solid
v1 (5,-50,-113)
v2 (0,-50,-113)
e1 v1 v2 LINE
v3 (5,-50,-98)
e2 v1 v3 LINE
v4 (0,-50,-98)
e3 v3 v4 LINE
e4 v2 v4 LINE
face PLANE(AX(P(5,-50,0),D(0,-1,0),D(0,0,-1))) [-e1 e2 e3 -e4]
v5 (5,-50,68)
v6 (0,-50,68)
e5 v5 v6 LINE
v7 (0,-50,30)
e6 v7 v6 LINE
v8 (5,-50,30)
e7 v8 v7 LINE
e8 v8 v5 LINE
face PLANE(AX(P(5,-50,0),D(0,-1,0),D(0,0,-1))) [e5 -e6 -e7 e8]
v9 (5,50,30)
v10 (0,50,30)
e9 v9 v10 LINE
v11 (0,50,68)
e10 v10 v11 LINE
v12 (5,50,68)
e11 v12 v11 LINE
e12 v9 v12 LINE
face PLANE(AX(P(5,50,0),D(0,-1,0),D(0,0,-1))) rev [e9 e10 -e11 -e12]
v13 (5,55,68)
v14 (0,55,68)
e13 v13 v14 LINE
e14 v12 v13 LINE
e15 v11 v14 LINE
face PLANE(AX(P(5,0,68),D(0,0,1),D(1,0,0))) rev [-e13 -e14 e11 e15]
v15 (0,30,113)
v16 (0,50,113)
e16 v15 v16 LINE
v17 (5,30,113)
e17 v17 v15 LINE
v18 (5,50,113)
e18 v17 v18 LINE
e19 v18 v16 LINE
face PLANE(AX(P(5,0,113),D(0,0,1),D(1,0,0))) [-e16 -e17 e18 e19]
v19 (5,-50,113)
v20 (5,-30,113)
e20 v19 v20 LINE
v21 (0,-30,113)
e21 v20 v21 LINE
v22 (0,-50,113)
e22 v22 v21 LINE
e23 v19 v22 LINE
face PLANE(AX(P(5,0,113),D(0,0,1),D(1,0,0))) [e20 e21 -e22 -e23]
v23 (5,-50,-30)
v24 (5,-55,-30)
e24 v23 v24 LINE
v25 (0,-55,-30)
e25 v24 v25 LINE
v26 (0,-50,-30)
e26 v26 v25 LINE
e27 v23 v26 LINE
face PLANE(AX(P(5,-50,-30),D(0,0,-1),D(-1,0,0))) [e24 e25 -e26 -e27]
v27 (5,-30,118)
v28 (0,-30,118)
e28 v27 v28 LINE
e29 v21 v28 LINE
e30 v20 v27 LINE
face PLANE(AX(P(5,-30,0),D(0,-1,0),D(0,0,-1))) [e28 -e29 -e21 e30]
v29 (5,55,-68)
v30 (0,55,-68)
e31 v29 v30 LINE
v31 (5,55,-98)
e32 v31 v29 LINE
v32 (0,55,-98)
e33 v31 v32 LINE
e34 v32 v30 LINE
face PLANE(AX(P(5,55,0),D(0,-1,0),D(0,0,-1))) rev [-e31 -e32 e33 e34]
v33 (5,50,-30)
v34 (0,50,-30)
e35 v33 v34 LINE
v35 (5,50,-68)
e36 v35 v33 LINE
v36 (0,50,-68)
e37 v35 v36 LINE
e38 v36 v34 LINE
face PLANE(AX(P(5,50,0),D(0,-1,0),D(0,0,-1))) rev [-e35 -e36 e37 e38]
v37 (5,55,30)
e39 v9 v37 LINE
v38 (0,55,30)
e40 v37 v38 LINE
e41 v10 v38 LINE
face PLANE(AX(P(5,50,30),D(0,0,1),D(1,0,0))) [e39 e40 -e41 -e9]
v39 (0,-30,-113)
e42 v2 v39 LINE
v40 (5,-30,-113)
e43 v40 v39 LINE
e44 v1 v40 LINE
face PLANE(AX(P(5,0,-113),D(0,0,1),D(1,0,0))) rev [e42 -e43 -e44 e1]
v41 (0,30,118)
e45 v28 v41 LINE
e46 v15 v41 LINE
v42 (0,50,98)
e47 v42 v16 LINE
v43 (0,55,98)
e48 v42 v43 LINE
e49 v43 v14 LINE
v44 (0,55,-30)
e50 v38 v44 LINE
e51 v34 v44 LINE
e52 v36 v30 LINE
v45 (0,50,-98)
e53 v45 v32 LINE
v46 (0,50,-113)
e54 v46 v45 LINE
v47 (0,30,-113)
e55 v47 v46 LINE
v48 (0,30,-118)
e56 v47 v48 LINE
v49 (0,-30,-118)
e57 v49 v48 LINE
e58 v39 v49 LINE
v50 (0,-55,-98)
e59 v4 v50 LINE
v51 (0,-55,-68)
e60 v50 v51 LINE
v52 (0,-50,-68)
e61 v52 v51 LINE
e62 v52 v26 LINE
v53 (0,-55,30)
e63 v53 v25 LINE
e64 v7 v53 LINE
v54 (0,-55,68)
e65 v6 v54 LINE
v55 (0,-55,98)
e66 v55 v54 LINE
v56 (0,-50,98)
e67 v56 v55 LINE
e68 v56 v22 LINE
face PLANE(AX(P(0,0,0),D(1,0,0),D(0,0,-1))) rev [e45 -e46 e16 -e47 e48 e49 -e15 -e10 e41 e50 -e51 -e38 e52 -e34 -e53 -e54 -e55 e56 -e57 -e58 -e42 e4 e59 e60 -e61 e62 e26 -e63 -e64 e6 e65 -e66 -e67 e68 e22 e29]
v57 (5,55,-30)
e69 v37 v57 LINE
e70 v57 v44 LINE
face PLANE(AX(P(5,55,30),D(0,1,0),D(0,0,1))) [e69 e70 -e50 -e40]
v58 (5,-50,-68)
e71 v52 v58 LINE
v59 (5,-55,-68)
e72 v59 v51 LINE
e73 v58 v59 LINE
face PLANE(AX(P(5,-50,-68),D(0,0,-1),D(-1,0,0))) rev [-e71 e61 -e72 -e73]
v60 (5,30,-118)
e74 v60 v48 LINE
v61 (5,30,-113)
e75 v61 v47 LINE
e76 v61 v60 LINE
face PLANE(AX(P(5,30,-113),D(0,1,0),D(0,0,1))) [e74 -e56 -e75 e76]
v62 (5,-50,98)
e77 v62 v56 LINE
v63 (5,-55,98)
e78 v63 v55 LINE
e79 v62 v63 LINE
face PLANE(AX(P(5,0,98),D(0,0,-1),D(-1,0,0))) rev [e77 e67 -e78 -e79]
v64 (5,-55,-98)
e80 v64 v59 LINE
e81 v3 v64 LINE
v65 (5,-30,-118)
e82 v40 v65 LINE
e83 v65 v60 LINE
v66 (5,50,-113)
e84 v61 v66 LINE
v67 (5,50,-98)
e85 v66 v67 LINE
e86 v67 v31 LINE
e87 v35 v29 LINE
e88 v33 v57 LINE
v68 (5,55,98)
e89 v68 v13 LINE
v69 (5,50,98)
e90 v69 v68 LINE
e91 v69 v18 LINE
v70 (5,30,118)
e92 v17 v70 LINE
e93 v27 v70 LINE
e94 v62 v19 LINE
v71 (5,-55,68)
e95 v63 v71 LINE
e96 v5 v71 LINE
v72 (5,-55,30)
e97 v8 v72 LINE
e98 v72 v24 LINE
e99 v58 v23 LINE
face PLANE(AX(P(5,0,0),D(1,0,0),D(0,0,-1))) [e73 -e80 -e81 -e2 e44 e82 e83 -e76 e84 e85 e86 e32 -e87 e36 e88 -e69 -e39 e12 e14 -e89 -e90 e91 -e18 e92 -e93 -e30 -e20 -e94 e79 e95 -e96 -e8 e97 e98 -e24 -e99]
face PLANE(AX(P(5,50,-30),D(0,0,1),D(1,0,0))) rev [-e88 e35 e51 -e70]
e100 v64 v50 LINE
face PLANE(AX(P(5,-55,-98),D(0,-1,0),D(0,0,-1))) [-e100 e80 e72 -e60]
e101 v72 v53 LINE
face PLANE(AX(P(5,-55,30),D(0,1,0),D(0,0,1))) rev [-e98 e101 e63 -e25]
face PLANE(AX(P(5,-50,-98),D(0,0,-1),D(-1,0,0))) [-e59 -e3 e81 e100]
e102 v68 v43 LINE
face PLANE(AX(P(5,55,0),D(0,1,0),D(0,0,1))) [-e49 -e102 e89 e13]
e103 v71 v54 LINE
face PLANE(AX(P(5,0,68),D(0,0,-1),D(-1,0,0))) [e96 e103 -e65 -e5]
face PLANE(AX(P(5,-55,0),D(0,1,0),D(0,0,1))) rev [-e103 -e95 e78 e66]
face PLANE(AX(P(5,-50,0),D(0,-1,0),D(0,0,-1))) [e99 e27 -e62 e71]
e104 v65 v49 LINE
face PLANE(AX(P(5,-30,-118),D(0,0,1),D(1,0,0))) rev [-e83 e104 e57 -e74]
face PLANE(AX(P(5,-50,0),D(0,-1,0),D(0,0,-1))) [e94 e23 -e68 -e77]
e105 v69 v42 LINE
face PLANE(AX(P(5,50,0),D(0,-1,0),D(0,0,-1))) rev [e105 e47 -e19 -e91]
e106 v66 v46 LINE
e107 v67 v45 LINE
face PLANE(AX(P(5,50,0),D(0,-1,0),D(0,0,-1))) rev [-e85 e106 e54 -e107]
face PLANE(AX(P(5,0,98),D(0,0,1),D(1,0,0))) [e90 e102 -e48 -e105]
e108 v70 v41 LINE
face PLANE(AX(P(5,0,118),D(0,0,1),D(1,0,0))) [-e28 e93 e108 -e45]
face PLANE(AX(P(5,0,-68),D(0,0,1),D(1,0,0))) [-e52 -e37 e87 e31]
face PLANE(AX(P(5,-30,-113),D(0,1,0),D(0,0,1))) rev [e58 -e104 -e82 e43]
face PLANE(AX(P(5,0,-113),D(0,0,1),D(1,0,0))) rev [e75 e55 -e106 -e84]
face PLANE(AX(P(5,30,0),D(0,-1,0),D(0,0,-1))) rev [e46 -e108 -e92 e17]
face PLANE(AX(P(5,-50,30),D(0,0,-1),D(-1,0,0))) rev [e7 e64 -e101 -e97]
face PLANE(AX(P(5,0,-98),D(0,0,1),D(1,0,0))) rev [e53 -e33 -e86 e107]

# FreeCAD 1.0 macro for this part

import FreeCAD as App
import Part
import Sketcher
Q = App.Units.Quantity


def add_polygon(sketch, points):
    """Adds a closed chain of lines whose ends are joined by coincident constraints."""
    first, n = sketch.GeometryCount, len(points)
    for a, b in zip(points, points[1:] + points[:1]):
        sketch.addGeometry(Part.LineSegment(App.Vector(*a, 0), App.Vector(*b, 0)), False)
    for i in range(n):
        sketch.addConstraint(Sketcher.Constraint("Coincident", first + i, 2, first + (i + 1) % n, 1))

doc = App.newDocument("Part")
body = doc.addObject("PartDesign::Body", "Body")

sketch1 = body.newObject("Sketcher::SketchObject", "Sketch")
sketch1.AttachmentSupport = (doc.getObject("YZ_Plane"), [""])
sketch1.MapMode = "FlatFace"
add_polygon(sketch1, [(-30, 113), (-50, 113), (-50, 98), (-55, 98), (-55, 68), (-50, 68), (-50, 30), (-55, 30), (-55, -30), (-50, -30), (-50, -68), (-55, -68), (-55, -98), (-50, -98), (-50, -113), (-30, -113), (-30, -118), (30, -118), (30, -113), (50, -113), (50, -98), (55, -98), (55, -68), (50, -68), (50, -30), (55, -30), (55, 30), (50, 30), (50, 68), (55, 68), (55, 98), (50, 98), (50, 113), (30, 113), (30, 118), (-30, 118)])
sketch1.addConstraint(Sketcher.Constraint("Horizontal", 0))
sketch1.addConstraint(Sketcher.Constraint("Vertical", 1))
sketch1.addConstraint(Sketcher.Constraint("Horizontal", 2))
sketch1.addConstraint(Sketcher.Constraint("Vertical", 3))
sketch1.addConstraint(Sketcher.Constraint("Horizontal", 4))
sketch1.addConstraint(Sketcher.Constraint("Vertical", 5))
sketch1.addConstraint(Sketcher.Constraint("Horizontal", 6))
sketch1.addConstraint(Sketcher.Constraint("Vertical", 7))
sketch1.addConstraint(Sketcher.Constraint("Horizontal", 8))
sketch1.addConstraint(Sketcher.Constraint("Vertical", 9))
sketch1.addConstraint(Sketcher.Constraint("Horizontal", 10))
sketch1.addConstraint(Sketcher.Constraint("Vertical", 11))
sketch1.addConstraint(Sketcher.Constraint("Horizontal", 12))
sketch1.addConstraint(Sketcher.Constraint("Vertical", 13))
sketch1.addConstraint(Sketcher.Constraint("Horizontal", 14))
sketch1.addConstraint(Sketcher.Constraint("Vertical", 15))
sketch1.addConstraint(Sketcher.Constraint("Horizontal", 16))
sketch1.addConstraint(Sketcher.Constraint("Vertical", 17))
sketch1.addConstraint(Sketcher.Constraint("Horizontal", 18))
sketch1.addConstraint(Sketcher.Constraint("Vertical", 19))
sketch1.addConstraint(Sketcher.Constraint("Horizontal", 20))
sketch1.addConstraint(Sketcher.Constraint("Vertical", 21))
sketch1.addConstraint(Sketcher.Constraint("Horizontal", 22))
sketch1.addConstraint(Sketcher.Constraint("Vertical", 23))
sketch1.addConstraint(Sketcher.Constraint("Horizontal", 24))
sketch1.addConstraint(Sketcher.Constraint("Vertical", 25))
sketch1.addConstraint(Sketcher.Constraint("Horizontal", 26))
sketch1.addConstraint(Sketcher.Constraint("Vertical", 27))
sketch1.addConstraint(Sketcher.Constraint("Horizontal", 28))
sketch1.addConstraint(Sketcher.Constraint("Vertical", 29))
sketch1.addConstraint(Sketcher.Constraint("Horizontal", 30))
sketch1.addConstraint(Sketcher.Constraint("Vertical", 31))
sketch1.addConstraint(Sketcher.Constraint("Horizontal", 32))
sketch1.addConstraint(Sketcher.Constraint("Vertical", 33))
sketch1.addConstraint(Sketcher.Constraint("Horizontal", 34))
sketch1.addConstraint(Sketcher.Constraint("Vertical", 35))
sketch1.addConstraint(Sketcher.Constraint("Symmetric", 0, 2, 18, 2, -1, 1))
sketch1.addConstraint(Sketcher.Constraint("Symmetric", 2, 2, 20, 2, -1, 1))
sketch1.addConstraint(Sketcher.Constraint("Symmetric", 4, 2, 22, 2, -1, 1))
sketch1.addConstraint(Sketcher.Constraint("Symmetric", 6, 2, 24, 2, -1, 1))
sketch1.addConstraint(Sketcher.Constraint("Symmetric", 8, 2, 26, 2, -1, 1))
sketch1.addConstraint(Sketcher.Constraint("Symmetric", 10, 2, 28, 2, -1, 1))
sketch1.addConstraint(Sketcher.Constraint("Symmetric", 12, 2, 30, 2, -1, 1))
sketch1.addConstraint(Sketcher.Constraint("Symmetric", 14, 2, 32, 2, -1, 1))
sketch1.addConstraint(Sketcher.Constraint("Symmetric", 16, 2, 34, 2, -1, 1))
sketch1.addConstraint(Sketcher.Constraint("Symmetric", 14, 2, 17, 2, -2))
sketch1.addConstraint(Sketcher.Constraint("Symmetric", 12, 2, 19, 2, -2))
sketch1.addConstraint(Sketcher.Constraint("Symmetric", 10, 2, 21, 2, -2))
sketch1.addConstraint(Sketcher.Constraint("Symmetric", 8, 2, 23, 2, -2))
sketch1.addConstraint(Sketcher.Constraint("Vertical", 1, 2, 4, 2))
sketch1.addConstraint(Sketcher.Constraint("Vertical", 3, 2, 6, 2))
sketch1.addConstraint(Sketcher.Constraint("Equal", 34, 7))
sketch1.addConstraint(Sketcher.Constraint("Equal", 30, 15))
sketch1.addConstraint(Sketcher.Constraint("DistanceX", 0, 2, 0, 1, Q("20 mm")))
sketch1.addConstraint(Sketcher.Constraint("DistanceX", 2, 2, 2, 1, Q("5 mm")))
sketch1.addConstraint(Sketcher.Constraint("DistanceX", 16, 1, 16, 2, Q("60 mm")))
sketch1.addConstraint(Sketcher.Constraint("DistanceY", 1, 2, 1, 1, Q("15 mm")))
sketch1.addConstraint(Sketcher.Constraint("DistanceY", 3, 2, 3, 1, Q("30 mm")))
sketch1.addConstraint(Sketcher.Constraint("DistanceY", 5, 2, 5, 1, Q("38 mm")))
pad1 = body.newObject("PartDesign::Pad", "Pad")
pad1.Profile = sketch1
pad1.Length = 5

doc.recompute()
